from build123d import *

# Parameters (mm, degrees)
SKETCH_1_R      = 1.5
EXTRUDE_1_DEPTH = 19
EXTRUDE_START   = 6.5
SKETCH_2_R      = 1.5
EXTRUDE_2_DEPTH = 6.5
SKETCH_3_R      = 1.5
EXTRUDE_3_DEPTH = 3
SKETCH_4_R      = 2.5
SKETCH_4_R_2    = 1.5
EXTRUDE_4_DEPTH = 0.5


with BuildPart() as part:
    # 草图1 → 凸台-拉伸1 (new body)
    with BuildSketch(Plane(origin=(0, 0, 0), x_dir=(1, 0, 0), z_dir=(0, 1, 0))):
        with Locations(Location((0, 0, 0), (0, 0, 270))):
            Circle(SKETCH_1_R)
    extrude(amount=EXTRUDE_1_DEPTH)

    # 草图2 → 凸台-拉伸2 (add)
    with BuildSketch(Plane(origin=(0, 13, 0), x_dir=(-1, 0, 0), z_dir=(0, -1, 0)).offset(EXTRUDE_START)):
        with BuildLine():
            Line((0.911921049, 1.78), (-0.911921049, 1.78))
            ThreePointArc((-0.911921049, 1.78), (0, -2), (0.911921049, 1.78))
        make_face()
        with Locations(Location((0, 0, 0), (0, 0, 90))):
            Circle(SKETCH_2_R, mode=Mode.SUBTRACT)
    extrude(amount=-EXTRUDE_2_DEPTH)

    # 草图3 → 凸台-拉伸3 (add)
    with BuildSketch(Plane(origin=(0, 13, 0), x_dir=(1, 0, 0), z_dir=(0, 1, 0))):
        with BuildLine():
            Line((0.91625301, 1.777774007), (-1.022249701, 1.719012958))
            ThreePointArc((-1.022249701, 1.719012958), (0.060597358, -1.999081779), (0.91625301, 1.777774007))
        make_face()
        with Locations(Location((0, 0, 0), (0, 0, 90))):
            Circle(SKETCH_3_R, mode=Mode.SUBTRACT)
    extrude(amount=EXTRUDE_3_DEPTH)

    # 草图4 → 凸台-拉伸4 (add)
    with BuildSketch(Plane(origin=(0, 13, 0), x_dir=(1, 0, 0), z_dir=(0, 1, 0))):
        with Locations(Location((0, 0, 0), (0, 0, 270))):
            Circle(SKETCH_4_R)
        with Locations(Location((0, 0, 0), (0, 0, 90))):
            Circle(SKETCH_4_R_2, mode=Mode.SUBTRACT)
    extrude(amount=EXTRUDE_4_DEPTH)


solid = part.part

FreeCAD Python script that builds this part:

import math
import FreeCAD as App
import Part
import Sketcher

V = App.Vector

doc = App.newDocument("Part")
body = doc.addObject("PartDesign::Body", "Body")

# Sketch on XZ plane
sketch1 = doc.addObject("Sketcher::SketchObject", "Sketch")
body.addObject(sketch1)
sketch1.AttachmentSupport = (doc.XZ_Plane, [""])
sketch1.MapMode = "FlatFace"
sketch1.addGeometry(Part.Circle(V(0, 0, 0), V(0, 0, 1), 1.5), False)
sketch1.addConstraint([
    Sketcher.Constraint("Coincident", 0, 3, -1, 1),
    Sketcher.Constraint("Diameter", 0, 3.0),
])
pad1 = doc.addObject("PartDesign::Pad", "Pad")
body.addObject(pad1)
pad1.Profile = sketch1
pad1.Length = 19
pad1.Reversed = True

# Sketch on XZ plane
sketch2 = doc.addObject("Sketcher::SketchObject", "Sketch001")
body.addObject(sketch2)
sketch2.AttachmentSupport = (doc.XZ_Plane, [""])
sketch2.MapMode = "FlatFace"
sketch2.AttachmentOffset = App.Placement(V(0, 0, -6.5), App.Rotation())
sketch2.addGeometry([
    Part.LineSegment(V(-0.911921, -1.78, 0), V(0.911921, -1.78, 0)),
    Part.ArcOfCircle(Part.Circle(V(0, 0, 0), V(0, 0, 1), 2), math.radians(-62.873247), math.radians(242.873247)),
    Part.Circle(V(0, 0, 0), V(0, 0, 1), 1.5),
], False)
sketch2.addConstraint([
    Sketcher.Constraint("Coincident", 0, 1, 1, 2),
    Sketcher.Constraint("Coincident", 1, 1, 0, 2),
    Sketcher.Constraint("Horizontal", 0),
    Sketcher.Constraint("Coincident", 1, 3, -1, 1),
    Sketcher.Constraint("Coincident", 2, 3, -1, 1),
    Sketcher.Constraint("Diameter", 2, 3.0),
    Sketcher.Constraint("Radius", 1, 2.0),
    Sketcher.Constraint("DistanceY", 0, 1, -1, 1, 1.78),
])
pad2 = doc.addObject("PartDesign::Pad", "Pad001")
body.addObject(pad2)
pad2.Profile = sketch2
pad2.Length = 6.5
pad2.Reversed = True

# Sketch on XZ plane
sketch3 = doc.addObject("Sketcher::SketchObject", "Sketch002")
body.addObject(sketch3)
sketch3.AttachmentSupport = (doc.XZ_Plane, [""])
sketch3.MapMode = "FlatFace"
sketch3.AttachmentOffset = App.Placement(V(0, 0, -13), App.Rotation())
sketch3.addGeometry([
    Part.LineSegment(V(0.916253, -1.777774, 0), V(-1.02225, -1.719013, 0)),
    Part.ArcOfCircle(Part.Circle(V(0, 0, 0), V(0, 0, 1), 2), math.radians(-62.73372), math.radians(239.261215)),
    Part.Circle(V(0, 0, 0), V(0, 0, 1), 1.5),
], False)
sketch3.addConstraint([
    Sketcher.Constraint("Coincident", 0, 1, 1, 1),
    Sketcher.Constraint("Coincident", 1, 2, 0, 2),
    Sketcher.Constraint("Coincident", 1, 3, -1, 1),
    Sketcher.Constraint("Coincident", 2, 3, -1, 1),
    Sketcher.Constraint("Diameter", 2, 3.0),
    Sketcher.Constraint("Radius", 1, 2.0),
    Sketcher.Constraint("DistanceX", 1, 2, -1, 1, 1.02225),
    Sketcher.Constraint("DistanceY", 0, 1, 1, 2, 0.058761),
])
pad3 = doc.addObject("PartDesign::Pad", "Pad002")
body.addObject(pad3)
pad3.Profile = sketch3
pad3.Length = 3
pad3.Reversed = True

# Sketch on XZ plane
sketch4 = doc.addObject("Sketcher::SketchObject", "Sketch003")
body.addObject(sketch4)
sketch4.AttachmentSupport = (doc.XZ_Plane, [""])
sketch4.MapMode = "FlatFace"
sketch4.AttachmentOffset = App.Placement(V(0, 0, -13), App.Rotation())
sketch4.addGeometry([
    Part.Circle(V(0, 0, 0), V(0, 0, 1), 2.5),
    Part.Circle(V(0, 0, 0), V(0, 0, 1), 1.5),
], False)
sketch4.addConstraint([
    Sketcher.Constraint("Coincident", 0, 3, -1, 1),
    Sketcher.Constraint("Coincident", 1, 3, -1, 1),
    Sketcher.Constraint("Diameter", 0, 5.0),
    Sketcher.Constraint("Diameter", 1, 3.0),
])
pad4 = doc.addObject("PartDesign::Pad", "Pad003")
body.addObject(pad4)
pad4.Profile = sketch4
pad4.Length = 0.5
pad4.Reversed = True

doc.recompute()
